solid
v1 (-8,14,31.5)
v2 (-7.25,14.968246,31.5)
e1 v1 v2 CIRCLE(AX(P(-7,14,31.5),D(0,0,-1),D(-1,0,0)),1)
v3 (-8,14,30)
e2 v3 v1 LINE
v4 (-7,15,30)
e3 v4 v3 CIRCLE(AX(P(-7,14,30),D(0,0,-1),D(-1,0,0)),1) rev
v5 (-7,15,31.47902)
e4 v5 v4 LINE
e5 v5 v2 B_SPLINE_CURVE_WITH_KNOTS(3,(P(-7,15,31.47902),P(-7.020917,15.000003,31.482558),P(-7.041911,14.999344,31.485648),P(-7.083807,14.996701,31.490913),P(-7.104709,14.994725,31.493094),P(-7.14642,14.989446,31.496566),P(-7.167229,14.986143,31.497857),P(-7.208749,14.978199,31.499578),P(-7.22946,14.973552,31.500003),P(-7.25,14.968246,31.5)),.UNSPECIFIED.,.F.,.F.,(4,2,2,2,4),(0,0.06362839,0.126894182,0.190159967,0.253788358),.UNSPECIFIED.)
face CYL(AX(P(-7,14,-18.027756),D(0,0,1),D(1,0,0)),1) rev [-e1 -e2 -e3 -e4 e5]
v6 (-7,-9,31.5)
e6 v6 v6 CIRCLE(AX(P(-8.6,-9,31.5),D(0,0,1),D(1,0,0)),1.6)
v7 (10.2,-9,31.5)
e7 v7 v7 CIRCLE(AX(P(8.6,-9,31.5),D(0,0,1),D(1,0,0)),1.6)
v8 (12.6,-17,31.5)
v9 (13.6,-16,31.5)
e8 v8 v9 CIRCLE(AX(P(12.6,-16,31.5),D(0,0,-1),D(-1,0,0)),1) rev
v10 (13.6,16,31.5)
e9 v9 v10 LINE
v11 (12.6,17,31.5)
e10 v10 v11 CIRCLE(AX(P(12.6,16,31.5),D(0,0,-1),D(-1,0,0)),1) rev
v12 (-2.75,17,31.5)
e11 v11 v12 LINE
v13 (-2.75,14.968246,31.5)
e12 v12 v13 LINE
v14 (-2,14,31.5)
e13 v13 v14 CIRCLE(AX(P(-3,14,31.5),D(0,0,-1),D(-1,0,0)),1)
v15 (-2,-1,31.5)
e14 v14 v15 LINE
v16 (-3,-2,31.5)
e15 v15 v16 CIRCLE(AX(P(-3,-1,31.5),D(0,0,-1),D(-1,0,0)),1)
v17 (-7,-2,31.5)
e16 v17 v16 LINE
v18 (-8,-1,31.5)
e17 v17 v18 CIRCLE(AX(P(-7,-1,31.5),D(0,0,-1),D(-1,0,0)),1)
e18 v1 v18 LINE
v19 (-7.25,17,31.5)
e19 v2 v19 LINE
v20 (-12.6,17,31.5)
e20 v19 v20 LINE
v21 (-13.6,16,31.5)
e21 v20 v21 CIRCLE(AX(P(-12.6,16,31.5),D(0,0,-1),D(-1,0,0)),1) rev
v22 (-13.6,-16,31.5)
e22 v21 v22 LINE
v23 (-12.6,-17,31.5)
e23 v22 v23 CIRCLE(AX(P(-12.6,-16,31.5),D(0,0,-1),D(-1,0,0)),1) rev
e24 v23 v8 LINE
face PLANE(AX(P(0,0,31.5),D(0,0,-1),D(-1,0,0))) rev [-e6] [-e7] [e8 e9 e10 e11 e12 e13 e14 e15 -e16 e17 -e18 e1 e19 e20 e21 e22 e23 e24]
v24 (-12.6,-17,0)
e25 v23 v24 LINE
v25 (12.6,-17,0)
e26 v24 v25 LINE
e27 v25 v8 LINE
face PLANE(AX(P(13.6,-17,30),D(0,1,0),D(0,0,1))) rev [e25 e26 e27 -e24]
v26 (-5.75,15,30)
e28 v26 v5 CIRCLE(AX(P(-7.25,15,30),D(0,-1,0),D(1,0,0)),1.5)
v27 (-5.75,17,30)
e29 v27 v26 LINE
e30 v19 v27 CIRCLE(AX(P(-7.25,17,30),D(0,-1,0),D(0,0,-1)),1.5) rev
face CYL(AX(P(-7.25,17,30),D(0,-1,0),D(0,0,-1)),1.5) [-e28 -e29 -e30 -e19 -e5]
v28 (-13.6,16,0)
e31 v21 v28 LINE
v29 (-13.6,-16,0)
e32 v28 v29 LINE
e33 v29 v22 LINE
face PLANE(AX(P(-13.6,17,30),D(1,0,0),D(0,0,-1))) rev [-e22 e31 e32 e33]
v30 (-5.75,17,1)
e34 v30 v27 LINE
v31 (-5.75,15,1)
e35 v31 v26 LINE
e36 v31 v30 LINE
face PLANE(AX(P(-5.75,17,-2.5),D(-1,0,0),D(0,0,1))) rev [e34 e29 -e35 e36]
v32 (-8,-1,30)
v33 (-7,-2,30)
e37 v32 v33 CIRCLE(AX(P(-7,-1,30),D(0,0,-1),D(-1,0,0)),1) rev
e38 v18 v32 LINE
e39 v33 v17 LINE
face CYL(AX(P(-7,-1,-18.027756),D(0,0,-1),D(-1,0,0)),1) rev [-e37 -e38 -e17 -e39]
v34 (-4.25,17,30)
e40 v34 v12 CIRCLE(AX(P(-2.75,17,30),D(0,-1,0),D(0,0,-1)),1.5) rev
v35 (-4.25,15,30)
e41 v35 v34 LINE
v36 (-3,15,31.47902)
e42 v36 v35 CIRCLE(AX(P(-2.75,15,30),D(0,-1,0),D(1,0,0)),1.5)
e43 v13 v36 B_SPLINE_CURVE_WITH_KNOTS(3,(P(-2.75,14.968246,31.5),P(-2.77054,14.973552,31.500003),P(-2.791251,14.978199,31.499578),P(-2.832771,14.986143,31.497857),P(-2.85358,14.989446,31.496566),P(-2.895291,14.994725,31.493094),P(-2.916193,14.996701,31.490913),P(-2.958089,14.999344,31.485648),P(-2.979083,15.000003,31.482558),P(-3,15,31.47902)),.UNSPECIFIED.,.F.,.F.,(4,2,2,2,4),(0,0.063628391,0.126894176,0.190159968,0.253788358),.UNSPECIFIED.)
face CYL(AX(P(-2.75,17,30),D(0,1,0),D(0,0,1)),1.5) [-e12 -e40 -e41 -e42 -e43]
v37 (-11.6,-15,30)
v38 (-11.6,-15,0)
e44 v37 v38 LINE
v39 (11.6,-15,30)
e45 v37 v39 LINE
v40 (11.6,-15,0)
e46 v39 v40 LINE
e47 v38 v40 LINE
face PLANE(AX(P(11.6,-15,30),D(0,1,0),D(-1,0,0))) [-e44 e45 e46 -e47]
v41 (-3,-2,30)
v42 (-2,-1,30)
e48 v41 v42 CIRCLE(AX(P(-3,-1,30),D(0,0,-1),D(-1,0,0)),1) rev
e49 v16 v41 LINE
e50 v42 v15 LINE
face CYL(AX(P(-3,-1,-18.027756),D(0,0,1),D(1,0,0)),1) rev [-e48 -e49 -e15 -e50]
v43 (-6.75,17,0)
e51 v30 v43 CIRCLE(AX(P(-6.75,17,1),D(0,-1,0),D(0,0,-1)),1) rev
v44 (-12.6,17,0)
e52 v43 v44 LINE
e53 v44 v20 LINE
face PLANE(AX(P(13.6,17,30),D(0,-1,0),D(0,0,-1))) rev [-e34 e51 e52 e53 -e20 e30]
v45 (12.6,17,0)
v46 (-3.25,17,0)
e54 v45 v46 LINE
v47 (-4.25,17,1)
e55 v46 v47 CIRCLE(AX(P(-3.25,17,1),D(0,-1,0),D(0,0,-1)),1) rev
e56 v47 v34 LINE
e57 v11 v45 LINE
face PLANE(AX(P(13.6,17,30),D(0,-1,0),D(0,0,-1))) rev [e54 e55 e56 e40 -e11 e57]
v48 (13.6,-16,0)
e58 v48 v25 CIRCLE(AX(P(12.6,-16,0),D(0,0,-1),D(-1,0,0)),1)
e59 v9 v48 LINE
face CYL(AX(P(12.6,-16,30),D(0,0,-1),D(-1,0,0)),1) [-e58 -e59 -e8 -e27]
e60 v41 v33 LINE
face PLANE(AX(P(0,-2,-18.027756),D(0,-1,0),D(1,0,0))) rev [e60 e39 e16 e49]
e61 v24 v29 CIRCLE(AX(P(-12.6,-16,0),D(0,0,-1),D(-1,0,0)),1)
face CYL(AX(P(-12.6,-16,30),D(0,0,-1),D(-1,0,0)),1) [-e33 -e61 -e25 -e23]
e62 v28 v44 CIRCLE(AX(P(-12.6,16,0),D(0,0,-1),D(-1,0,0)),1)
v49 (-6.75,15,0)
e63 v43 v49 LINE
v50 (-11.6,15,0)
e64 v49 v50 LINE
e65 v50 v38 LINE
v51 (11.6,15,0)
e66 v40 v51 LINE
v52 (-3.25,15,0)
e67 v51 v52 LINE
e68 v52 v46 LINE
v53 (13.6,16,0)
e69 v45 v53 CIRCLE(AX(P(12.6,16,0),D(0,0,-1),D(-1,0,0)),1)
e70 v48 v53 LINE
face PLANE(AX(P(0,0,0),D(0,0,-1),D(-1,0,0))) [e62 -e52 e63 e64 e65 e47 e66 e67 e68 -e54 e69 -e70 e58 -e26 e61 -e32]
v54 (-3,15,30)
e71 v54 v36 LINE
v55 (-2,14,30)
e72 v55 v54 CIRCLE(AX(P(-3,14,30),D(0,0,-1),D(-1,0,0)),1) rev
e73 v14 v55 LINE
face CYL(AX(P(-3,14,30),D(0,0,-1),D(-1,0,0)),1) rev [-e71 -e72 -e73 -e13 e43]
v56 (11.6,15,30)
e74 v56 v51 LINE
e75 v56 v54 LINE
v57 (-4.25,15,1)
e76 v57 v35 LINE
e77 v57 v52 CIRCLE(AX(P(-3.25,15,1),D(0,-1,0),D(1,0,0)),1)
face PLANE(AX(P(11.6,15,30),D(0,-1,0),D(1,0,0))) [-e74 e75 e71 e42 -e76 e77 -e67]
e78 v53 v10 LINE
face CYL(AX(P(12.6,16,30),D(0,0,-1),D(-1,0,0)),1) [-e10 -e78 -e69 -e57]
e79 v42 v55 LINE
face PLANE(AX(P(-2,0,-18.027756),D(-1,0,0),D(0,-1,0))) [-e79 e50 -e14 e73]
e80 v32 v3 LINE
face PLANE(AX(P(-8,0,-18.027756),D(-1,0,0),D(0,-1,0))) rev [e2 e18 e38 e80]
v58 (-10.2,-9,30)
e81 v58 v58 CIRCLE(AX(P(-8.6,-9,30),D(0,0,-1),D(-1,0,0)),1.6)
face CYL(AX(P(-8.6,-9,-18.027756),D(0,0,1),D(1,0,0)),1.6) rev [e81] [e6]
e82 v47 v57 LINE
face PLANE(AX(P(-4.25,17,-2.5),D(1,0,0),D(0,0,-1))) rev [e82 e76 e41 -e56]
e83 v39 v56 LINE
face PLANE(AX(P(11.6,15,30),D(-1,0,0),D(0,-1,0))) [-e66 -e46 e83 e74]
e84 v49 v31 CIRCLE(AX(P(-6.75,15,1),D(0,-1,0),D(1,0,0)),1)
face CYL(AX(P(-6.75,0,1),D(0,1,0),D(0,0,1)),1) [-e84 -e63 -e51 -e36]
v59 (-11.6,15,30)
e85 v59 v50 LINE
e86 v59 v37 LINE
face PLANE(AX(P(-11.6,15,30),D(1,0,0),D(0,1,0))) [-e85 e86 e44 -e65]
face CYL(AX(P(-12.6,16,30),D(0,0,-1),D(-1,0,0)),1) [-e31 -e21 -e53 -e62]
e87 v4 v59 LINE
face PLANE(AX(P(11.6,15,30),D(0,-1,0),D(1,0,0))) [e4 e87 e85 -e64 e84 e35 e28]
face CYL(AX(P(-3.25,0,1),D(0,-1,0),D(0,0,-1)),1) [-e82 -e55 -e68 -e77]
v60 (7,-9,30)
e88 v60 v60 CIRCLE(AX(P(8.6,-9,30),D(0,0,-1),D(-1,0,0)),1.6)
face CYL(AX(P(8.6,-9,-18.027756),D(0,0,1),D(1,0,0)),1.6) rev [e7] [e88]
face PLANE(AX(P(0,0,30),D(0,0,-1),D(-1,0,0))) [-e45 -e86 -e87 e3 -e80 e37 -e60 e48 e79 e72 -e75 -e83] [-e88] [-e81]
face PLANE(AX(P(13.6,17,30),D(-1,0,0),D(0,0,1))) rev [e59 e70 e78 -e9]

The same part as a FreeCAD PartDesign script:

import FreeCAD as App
import Part
import Sketcher


def edges_at(feature, points):
    """Names of the edges that pass closest to the given points."""
    edges = feature.Shape.Edges
    near = lambda p: min(range(len(edges)), key=lambda i: edges[i].distToShape(Part.Vertex(*p))[0])
    return sorted({f"Edge{near(p) + 1}" for p in points})


def add_polygon(sketch, points):
    """Adds a closed chain of lines whose ends are joined by coincident constraints."""
    first, n = sketch.GeometryCount, len(points)
    for a, b in zip(points, points[1:] + points[:1]):
        sketch.addGeometry(Part.LineSegment(App.Vector(*a, 0), App.Vector(*b, 0)), False)
    for i in range(n):
        sketch.addConstraint(Sketcher.Constraint("Coincident", first + i, 2, first + (i + 1) % n, 1))

doc = App.newDocument("Part")
body = doc.addObject("PartDesign::Body", "Body")

sketch1 = body.newObject("Sketcher::SketchObject", "Sketch")
sketch1.AttachmentSupport = (doc.getObject("XY_Plane"), [""])
sketch1.MapMode = "FlatFace"
add_polygon(sketch1, [(-14, 17), (-14, -17), (14, -17), (14, 17)])
add_polygon(sketch1, [(12, -15), (-12, -15), (-12, 15), (12, 15)])
sketch1.addConstraint([
    Sketcher.Constraint("Vertical", 0),
    Sketcher.Constraint("Horizontal", 1),
    Sketcher.Constraint("Vertical", 2),
    Sketcher.Constraint("Horizontal", 3),
    Sketcher.Constraint("Horizontal", 4),
    Sketcher.Constraint("Vertical", 5),
    Sketcher.Constraint("Horizontal", 6),
    Sketcher.Constraint("Vertical", 7),
    Sketcher.Constraint("Symmetric", 0, 2, 2, 2, -1, 1),
    Sketcher.Constraint("Symmetric", 4, 2, 6, 2, -1, 1),
    Sketcher.Constraint("DistanceY", 0, 2, 0, 1, 34.0),
    Sketcher.Constraint("DistanceY", 5, 1, 5, 2, 30.0),
    Sketcher.Constraint("DistanceX", 1, 1, 1, 2, 27.2),
    Sketcher.Constraint("DistanceX", 4, 2, 4, 1, 23.2),
])
pad1 = body.newObject("PartDesign::Pad", "Pad")
pad1.Profile = sketch1
pad1.Length = 30

sketch2 = body.newObject("Sketcher::SketchObject", "Sketch001")
sketch2.AttachmentSupport = (doc.getObject("XY_Plane"), [""])
sketch2.MapMode = "FlatFace"
sketch2.AttachmentOffset = App.Placement(App.Vector(0, 0, 30), App.Rotation())
add_polygon(sketch2, [(-14, 17), (-14, -17), (14, -17), (14, 17)])
sketch2.addConstraint([
    Sketcher.Constraint("Vertical", 0),
    Sketcher.Constraint("Horizontal", 1),
    Sketcher.Constraint("Vertical", 2),
    Sketcher.Constraint("Horizontal", 3),
    Sketcher.Constraint("Symmetric", 0, 2, 2, 2, -1, 1),
    Sketcher.Constraint("DistanceY", 0, 2, 0, 1, 34.0),
    Sketcher.Constraint("DistanceX", 1, 1, 1, 2, 27.2),
])
pad2 = body.newObject("PartDesign::Pad", "Pad001")
pad2.Profile = sketch2
pad2.Length = 1.5

sketch3 = body.newObject("Sketcher::SketchObject", "Sketch002")
sketch3.AttachmentSupport = (doc.getObject("XY_Plane"), [""])
sketch3.MapMode = "FlatFace"
sketch3.AttachmentOffset = App.Placement(App.Vector(0, 0, 31.5), App.Rotation())
add_polygon(sketch3, [(-8, 15), (-8, -2), (-2, -2), (-2, 15)])
sketch3.addGeometry(Part.Circle(App.Vector(-8.6, -9, 0), App.Vector(0, 0, 1), 1.6), False)
sketch3.addGeometry(Part.Circle(App.Vector(8.6, -9, 0), App.Vector(0, 0, 1), 1.6), False)
sketch3.addConstraint([
    Sketcher.Constraint("Vertical", 0),
    Sketcher.Constraint("Horizontal", 1),
    Sketcher.Constraint("Vertical", 2),
    Sketcher.Constraint("Horizontal", 3),
    Sketcher.Constraint("Equal", 4, 5),
    Sketcher.Constraint("Symmetric", 4, 3, 5, 3, -2),
    Sketcher.Constraint("Diameter", 4, 3.2),
    Sketcher.Constraint("DistanceX", 1, 1, 1, 2, 6.0),
    Sketcher.Constraint("DistanceY", 0, 2, 0, 1, 17.0),
    Sketcher.Constraint("DistanceY", 4, 3, -1, 1, 9.0),
    Sketcher.Constraint("DistanceX", 0, 2, -1, 1, 8.0),
    Sketcher.Constraint("DistanceY", 0, 2, -1, 1, 2.0),
    Sketcher.Constraint("DistanceX", 4, 3, -1, 1, 8.6),
])
pocket1 = body.newObject("PartDesign::Pocket", "Pocket")
pocket1.Profile = sketch3
pocket1.Length = 31.5
doc.recompute()

fillet = body.newObject("PartDesign::Fillet", "Fillet")
fillet.Base = (pocket1, edges_at(pocket1, [
    (-8, -2, 30.75),
    (-2, -2, 30.75),
    (-2, 15, 30.75),
    (-8, 15, 30.75),
    (-13.6, 17, 15.75),
    (13.6, 17, 15.75),
    (13.6, -17, 15.75),
    (-13.6, -17, 15.75),
]))
fillet.Radius = 1

sketch4 = body.newObject("Sketcher::SketchObject", "Sketch003")
sketch4.AttachmentSupport = (doc.getObject("XY_Plane"), [""])
sketch4.MapMode = "FlatFace"
sketch4.AttachmentOffset = App.Placement(App.Vector(0, 0, 31.5), App.Rotation())
add_polygon(sketch4, [(-5.8, 17), (-5.8, 15), (-4.2, 15), (-4.2, 17)])
sketch4.addConstraint([
    Sketcher.Constraint("Vertical", 0),
    Sketcher.Constraint("Horizontal", 1),
    Sketcher.Constraint("Vertical", 2),
    Sketcher.Constraint("Horizontal", 3),
    Sketcher.Constraint("DistanceY", 0, 2, 0, 1, 2.0),
    Sketcher.Constraint("DistanceX", 1, 1, 1, 2, 1.5),
    Sketcher.Constraint("DistanceY", -1, 1, 0, 2, 15.0),
    Sketcher.Constraint("DistanceX", 0, 2, -1, 1, 5.75),
])
pocket2 = body.newObject("PartDesign::Pocket", "Pocket001")
pocket2.Profile = sketch4
pocket2.Length = 31.5
doc.recompute()

fillet2 = body.newObject("PartDesign::Fillet", "Fillet001")
fillet2.Base = (pocket2, edges_at(pocket2, [(-4.25, 16, 0), (-5.75, 16, 0)]))
fillet2.Radius = 1
doc.recompute()

fillet3 = body.newObject("PartDesign::Fillet", "Fillet002")
fillet3.Base = (fillet2, edges_at(fillet2, [(-5.75, 16, 31.5), (-4.25, 16, 31.5)]))
fillet3.Radius = 1.5

doc.recompute()
